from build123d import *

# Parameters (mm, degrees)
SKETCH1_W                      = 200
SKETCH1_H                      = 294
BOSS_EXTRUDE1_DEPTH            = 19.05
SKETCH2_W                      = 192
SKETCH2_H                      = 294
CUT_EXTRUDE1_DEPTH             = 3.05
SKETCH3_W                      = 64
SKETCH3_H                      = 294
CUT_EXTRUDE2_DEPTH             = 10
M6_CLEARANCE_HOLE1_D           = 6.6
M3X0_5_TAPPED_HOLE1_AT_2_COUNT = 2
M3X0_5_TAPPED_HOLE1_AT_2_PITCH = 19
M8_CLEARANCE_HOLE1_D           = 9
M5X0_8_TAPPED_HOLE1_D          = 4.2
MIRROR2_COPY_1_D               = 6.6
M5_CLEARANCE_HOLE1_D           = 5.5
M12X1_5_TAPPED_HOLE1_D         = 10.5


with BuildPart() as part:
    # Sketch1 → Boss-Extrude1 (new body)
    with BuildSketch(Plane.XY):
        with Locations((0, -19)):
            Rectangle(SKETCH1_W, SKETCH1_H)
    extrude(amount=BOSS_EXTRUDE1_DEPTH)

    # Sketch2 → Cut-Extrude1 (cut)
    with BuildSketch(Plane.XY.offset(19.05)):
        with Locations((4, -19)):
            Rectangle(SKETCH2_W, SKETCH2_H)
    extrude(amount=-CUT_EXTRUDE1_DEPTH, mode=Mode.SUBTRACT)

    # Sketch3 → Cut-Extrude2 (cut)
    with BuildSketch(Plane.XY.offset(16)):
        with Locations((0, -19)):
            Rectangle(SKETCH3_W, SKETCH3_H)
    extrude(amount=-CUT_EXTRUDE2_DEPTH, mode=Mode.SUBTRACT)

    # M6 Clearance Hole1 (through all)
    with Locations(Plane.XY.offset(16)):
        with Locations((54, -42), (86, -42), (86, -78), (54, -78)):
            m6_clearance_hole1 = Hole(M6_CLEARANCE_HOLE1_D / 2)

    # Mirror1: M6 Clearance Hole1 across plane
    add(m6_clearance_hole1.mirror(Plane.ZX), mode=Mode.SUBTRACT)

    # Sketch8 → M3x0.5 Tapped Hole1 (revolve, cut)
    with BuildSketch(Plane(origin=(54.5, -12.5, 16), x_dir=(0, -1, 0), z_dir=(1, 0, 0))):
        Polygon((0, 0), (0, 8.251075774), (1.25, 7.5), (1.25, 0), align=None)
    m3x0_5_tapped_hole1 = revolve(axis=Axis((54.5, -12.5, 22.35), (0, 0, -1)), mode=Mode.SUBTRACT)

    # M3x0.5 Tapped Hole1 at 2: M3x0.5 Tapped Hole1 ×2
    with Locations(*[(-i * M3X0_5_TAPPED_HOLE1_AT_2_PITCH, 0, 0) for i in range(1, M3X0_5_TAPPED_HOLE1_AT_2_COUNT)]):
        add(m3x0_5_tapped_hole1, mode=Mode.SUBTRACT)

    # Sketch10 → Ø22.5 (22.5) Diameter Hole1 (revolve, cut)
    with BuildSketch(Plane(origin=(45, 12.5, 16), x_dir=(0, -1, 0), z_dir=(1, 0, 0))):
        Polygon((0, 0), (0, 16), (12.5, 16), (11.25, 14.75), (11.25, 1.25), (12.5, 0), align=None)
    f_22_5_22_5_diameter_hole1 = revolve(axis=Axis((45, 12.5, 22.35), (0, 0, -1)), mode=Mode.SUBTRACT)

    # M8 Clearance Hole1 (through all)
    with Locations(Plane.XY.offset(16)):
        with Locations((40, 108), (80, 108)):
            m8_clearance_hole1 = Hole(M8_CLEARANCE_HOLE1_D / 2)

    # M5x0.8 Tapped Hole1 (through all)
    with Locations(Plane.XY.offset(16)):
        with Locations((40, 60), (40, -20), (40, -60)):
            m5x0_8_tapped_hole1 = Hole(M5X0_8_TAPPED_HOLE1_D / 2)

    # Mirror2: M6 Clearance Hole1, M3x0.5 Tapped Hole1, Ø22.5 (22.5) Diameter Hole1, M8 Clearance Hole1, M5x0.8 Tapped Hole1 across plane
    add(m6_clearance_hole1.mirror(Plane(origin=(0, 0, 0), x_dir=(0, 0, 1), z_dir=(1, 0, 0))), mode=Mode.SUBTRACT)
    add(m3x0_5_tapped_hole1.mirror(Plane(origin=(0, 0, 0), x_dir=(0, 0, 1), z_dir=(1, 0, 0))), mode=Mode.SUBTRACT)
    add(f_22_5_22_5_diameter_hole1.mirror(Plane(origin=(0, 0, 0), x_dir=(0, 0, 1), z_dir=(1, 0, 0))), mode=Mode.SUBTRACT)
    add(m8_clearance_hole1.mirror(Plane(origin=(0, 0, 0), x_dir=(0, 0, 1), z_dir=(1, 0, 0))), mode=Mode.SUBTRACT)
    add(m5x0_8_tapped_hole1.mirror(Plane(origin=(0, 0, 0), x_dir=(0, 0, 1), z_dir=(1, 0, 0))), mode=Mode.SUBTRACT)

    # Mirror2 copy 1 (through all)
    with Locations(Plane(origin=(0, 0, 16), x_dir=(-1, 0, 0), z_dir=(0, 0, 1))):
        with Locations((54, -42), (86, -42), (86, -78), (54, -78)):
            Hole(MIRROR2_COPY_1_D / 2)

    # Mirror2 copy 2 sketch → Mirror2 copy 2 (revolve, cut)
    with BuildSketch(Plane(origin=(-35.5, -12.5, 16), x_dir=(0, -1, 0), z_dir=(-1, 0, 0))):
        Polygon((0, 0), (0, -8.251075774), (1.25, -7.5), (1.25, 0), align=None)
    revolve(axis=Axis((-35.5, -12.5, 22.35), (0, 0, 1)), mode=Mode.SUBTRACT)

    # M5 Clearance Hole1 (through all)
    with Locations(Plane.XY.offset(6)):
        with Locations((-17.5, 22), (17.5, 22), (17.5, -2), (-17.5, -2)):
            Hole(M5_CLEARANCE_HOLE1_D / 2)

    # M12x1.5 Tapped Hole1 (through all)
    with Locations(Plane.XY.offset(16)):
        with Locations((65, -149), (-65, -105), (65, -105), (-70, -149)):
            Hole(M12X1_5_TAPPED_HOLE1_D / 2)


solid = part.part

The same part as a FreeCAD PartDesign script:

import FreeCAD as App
import Part
import Sketcher
from FreeCAD import Vector
Q = App.Units.Quantity

doc = App.newDocument("Part")
body = doc.addObject("PartDesign::Body", "Body")

# Sketch on XY plane
sketch1 = body.newObject("Sketcher::SketchObject", "Sketch")
sketch1.AttachmentSupport = (doc.getObject("XY_Plane"), [""])
sketch1.MapMode = "FlatFace"
sketch1.addGeometry(Part.LineSegment(Vector(-100, 128, 0), Vector(-100, -166, 0)), False)
sketch1.addGeometry(Part.LineSegment(Vector(-100, -166, 0), Vector(100, -166, 0)), False)
sketch1.addGeometry(Part.LineSegment(Vector(100, -166, 0), Vector(100, 128, 0)), False)
sketch1.addGeometry(Part.LineSegment(Vector(100, 128, 0), Vector(-100, 128, 0)), False)
sketch1.addConstraint(Sketcher.Constraint("Coincident", 0, 2, 1, 1))
sketch1.addConstraint(Sketcher.Constraint("Coincident", 1, 2, 2, 1))
sketch1.addConstraint(Sketcher.Constraint("Coincident", 2, 2, 3, 1))
sketch1.addConstraint(Sketcher.Constraint("Coincident", 3, 2, 0, 1))
sketch1.addConstraint(Sketcher.Constraint("Vertical", 0))
sketch1.addConstraint(Sketcher.Constraint("Horizontal", 1))
sketch1.addConstraint(Sketcher.Constraint("Vertical", 2))
sketch1.addConstraint(Sketcher.Constraint("Horizontal", 3))
sketch1.addConstraint(Sketcher.Constraint("DistanceX", 1, 1, 1, 2, Q("200 mm")))
sketch1.addConstraint(Sketcher.Constraint("DistanceY", 0, 2, 0, 1, Q("294 mm")))
sketch1.addConstraint(Sketcher.Constraint("DistanceX", 0, 2, -1, 1, Q("100 mm")))
sketch1.addConstraint(Sketcher.Constraint("DistanceY", 0, 2, -1, 1, Q("166 mm")))
pad1 = body.newObject("PartDesign::Pad", "Pad")
pad1.Profile = sketch1
pad1.Length = 19.05

# Sketch on XY plane
sketch2 = body.newObject("Sketcher::SketchObject", "Sketch001")
sketch2.AttachmentSupport = (doc.getObject("XY_Plane"), [""])
sketch2.MapMode = "FlatFace"
sketch2.AttachmentOffset = App.Placement(Vector(0, 0, 19.05), App.Rotation())
sketch2.addGeometry(Part.LineSegment(Vector(-92, 128, 0), Vector(-92, -166, 0)), False)
sketch2.addGeometry(Part.LineSegment(Vector(-92, -166, 0), Vector(100, -166, 0)), False)
sketch2.addGeometry(Part.LineSegment(Vector(100, -166, 0), Vector(100, 128, 0)), False)
sketch2.addGeometry(Part.LineSegment(Vector(100, 128, 0), Vector(-92, 128, 0)), False)
sketch2.addConstraint(Sketcher.Constraint("Coincident", 0, 2, 1, 1))
sketch2.addConstraint(Sketcher.Constraint("Coincident", 1, 2, 2, 1))
sketch2.addConstraint(Sketcher.Constraint("Coincident", 2, 2, 3, 1))
sketch2.addConstraint(Sketcher.Constraint("Coincident", 3, 2, 0, 1))
sketch2.addConstraint(Sketcher.Constraint("Vertical", 0))
sketch2.addConstraint(Sketcher.Constraint("Horizontal", 1))
sketch2.addConstraint(Sketcher.Constraint("Vertical", 2))
sketch2.addConstraint(Sketcher.Constraint("Horizontal", 3))
sketch2.addConstraint(Sketcher.Constraint("DistanceX", 1, 1, 1, 2, Q("192 mm")))
sketch2.addConstraint(Sketcher.Constraint("DistanceY", 0, 2, 0, 1, Q("294 mm")))
sketch2.addConstraint(Sketcher.Constraint("DistanceX", 0, 2, -1, 1, Q("92 mm")))
sketch2.addConstraint(Sketcher.Constraint("DistanceY", 0, 2, -1, 1, Q("166 mm")))
pocket1 = body.newObject("PartDesign::Pocket", "Pocket")
pocket1.Profile = sketch2
pocket1.Length = 3.05

# Sketch on XY plane
sketch3 = body.newObject("Sketcher::SketchObject", "Sketch002")
sketch3.AttachmentSupport = (doc.getObject("XY_Plane"), [""])
sketch3.MapMode = "FlatFace"
sketch3.AttachmentOffset = App.Placement(Vector(0, 0, 16), App.Rotation())
sketch3.addGeometry(Part.LineSegment(Vector(-32, 128, 0), Vector(-32, -166, 0)), False)
sketch3.addGeometry(Part.LineSegment(Vector(-32, -166, 0), Vector(32, -166, 0)), False)
sketch3.addGeometry(Part.LineSegment(Vector(32, -166, 0), Vector(32, 128, 0)), False)
sketch3.addGeometry(Part.LineSegment(Vector(32, 128, 0), Vector(-32, 128, 0)), False)
sketch3.addConstraint(Sketcher.Constraint("Coincident", 0, 2, 1, 1))
sketch3.addConstraint(Sketcher.Constraint("Coincident", 1, 2, 2, 1))
sketch3.addConstraint(Sketcher.Constraint("Coincident", 2, 2, 3, 1))
sketch3.addConstraint(Sketcher.Constraint("Coincident", 3, 2, 0, 1))
sketch3.addConstraint(Sketcher.Constraint("Vertical", 0))
sketch3.addConstraint(Sketcher.Constraint("Horizontal", 1))
sketch3.addConstraint(Sketcher.Constraint("Vertical", 2))
sketch3.addConstraint(Sketcher.Constraint("Horizontal", 3))
sketch3.addConstraint(Sketcher.Constraint("DistanceX", 1, 1, 1, 2, Q("64 mm")))
sketch3.addConstraint(Sketcher.Constraint("DistanceY", 0, 2, 0, 1, Q("294 mm")))
sketch3.addConstraint(Sketcher.Constraint("DistanceX", 0, 2, -1, 1, Q("32 mm")))
sketch3.addConstraint(Sketcher.Constraint("DistanceY", 0, 2, -1, 1, Q("166 mm")))
pocket2 = body.newObject("PartDesign::Pocket", "Pocket001")
pocket2.Profile = sketch3
pocket2.Length = 10

# Sketch on XY plane
sketch4 = body.newObject("Sketcher::SketchObject", "Sketch003")
sketch4.AttachmentSupport = (doc.getObject("XY_Plane"), [""])
sketch4.MapMode = "FlatFace"
sketch4.AttachmentOffset = App.Placement(Vector(0, 0, 16), App.Rotation())
sketch4.addGeometry(Part.Circle(Vector(54, -42, 0), Vector(0, 0, 1), 3.3), False)
sketch4.addGeometry(Part.Circle(Vector(86, -42, 0), Vector(0, 0, 1), 3.3), False)
sketch4.addGeometry(Part.Circle(Vector(86, -78, 0), Vector(0, 0, 1), 3.3), False)
sketch4.addGeometry(Part.Circle(Vector(54, -78, 0), Vector(0, 0, 1), 3.3), False)
sketch4.addConstraint(Sketcher.Constraint("Equal", 0, 1))
sketch4.addConstraint(Sketcher.Constraint("Equal", 1, 2))
sketch4.addConstraint(Sketcher.Constraint("Equal", 2, 3))
sketch4.addConstraint(Sketcher.Constraint("Horizontal", 0, 3, 1, 3))
sketch4.addConstraint(Sketcher.Constraint("Horizontal", 2, 3, 3, 3))
sketch4.addConstraint(Sketcher.Constraint("Vertical", 1, 3, 2, 3))
sketch4.addConstraint(Sketcher.Constraint("Vertical", 0, 3, 3, 3))
sketch4.addConstraint(Sketcher.Constraint("Diameter", 0, Q("6.6 mm")))
sketch4.addConstraint(Sketcher.Constraint("DistanceX", -1, 1, 0, 3, Q("54 mm")))
sketch4.addConstraint(Sketcher.Constraint("DistanceY", 0, 3, -1, 1, Q("42 mm")))
sketch4.addConstraint(Sketcher.Constraint("DistanceX", -1, 1, 1, 3, Q("86 mm")))
sketch4.addConstraint(Sketcher.Constraint("DistanceY", 2, 3, -1, 1, Q("78 mm")))
doc.recompute()
hole = body.newObject("PartDesign::Hole", "Hole")
hole.Profile = sketch4
hole.ThreadType = "None"
hole.Diameter = 6.6
hole.DepthType = "ThroughAll"
doc.recompute()

mirrored = body.newObject("PartDesign::Mirrored", "Mirrored")
mirrored.Originals = [hole]
mirrored.MirrorPlane = (doc.getObject("XZ_Plane"), [""])
body.Tip = mirrored

# Sketch on YZ plane
sketch5 = body.newObject("Sketcher::SketchObject", "Sketch004")
sketch5.AttachmentSupport = (doc.getObject("YZ_Plane"), [""])
sketch5.MapMode = "FlatFace"
sketch5.AttachmentOffset = App.Placement(Vector(0, 0, 54.5), App.Rotation())
sketch5.addGeometry(Part.LineSegment(Vector(-12.5, 7.7, 0), Vector(-12.5, 16, 0)), False)
sketch5.addGeometry(Part.LineSegment(Vector(-12.5, 16, 0), Vector(-13.8, 16, 0)), False)
sketch5.addGeometry(Part.LineSegment(Vector(-13.8, 16, 0), Vector(-13.8, 8.5, 0)), False)
sketch5.addGeometry(Part.LineSegment(Vector(-13.8, 8.5, 0), Vector(-12.5, 7.7, 0)), False)
sketch5.addGeometry(Part.LineSegment(Vector(-12.5, 16, 0), Vector(-12.5, 7.7, 0)), True)  # axis
sketch5.addConstraint(Sketcher.Constraint("Coincident", 0, 2, 1, 1))
sketch5.addConstraint(Sketcher.Constraint("Coincident", 1, 2, 2, 1))
sketch5.addConstraint(Sketcher.Constraint("Coincident", 2, 2, 3, 1))
sketch5.addConstraint(Sketcher.Constraint("Coincident", 3, 2, 0, 1))
sketch5.addConstraint(Sketcher.Constraint("Vertical", 0))
sketch5.addConstraint(Sketcher.Constraint("Horizontal", 1))
sketch5.addConstraint(Sketcher.Constraint("Vertical", 2))
sketch5.addConstraint(Sketcher.Constraint("Vertical", 4))
sketch5.addConstraint(Sketcher.Constraint("Coincident", 4, 1, 0, 2))
sketch5.addConstraint(Sketcher.Constraint("Equal", 0, 4))
sketch5.addConstraint(Sketcher.Constraint("Angle", 3, Q("-31 deg")))
sketch5.addConstraint(Sketcher.Constraint("DistanceY", 2, 2, 2, 1, Q("7.5 mm")))
sketch5.addConstraint(Sketcher.Constraint("DistanceY", -1, 1, 0, 2, Q("16 mm")))
sketch5.addConstraint(Sketcher.Constraint("DistanceX", 1, 2, 1, 1, Q("1.25 mm")))
sketch5.addConstraint(Sketcher.Constraint("DistanceX", 0, 2, -1, 1, Q("12.5 mm")))
groove = body.newObject("PartDesign::Groove", "Groove")
groove.Profile = sketch5
groove.ReferenceAxis = (sketch5, ["Axis0"])
groove.Angle = 360
doc.recompute()

linearpattern = body.newObject("PartDesign::LinearPattern", "LinearPattern")
linearpattern.Originals = [groove]
linearpattern.Direction = (doc.getObject("X_Axis"), [""])
linearpattern.Mode = "offset"
linearpattern.Offset = 19
linearpattern.Occurrences = 2
linearpattern.Reversed = True
body.Tip = linearpattern

# Sketch on YZ plane
sketch6 = body.newObject("Sketcher::SketchObject", "Sketch005")
sketch6.AttachmentSupport = (doc.getObject("YZ_Plane"), [""])
sketch6.MapMode = "FlatFace"
sketch6.AttachmentOffset = App.Placement(Vector(0, 0, 45), App.Rotation())
sketch6.addGeometry(Part.LineSegment(Vector(12.5, 0, 0), Vector(12.5, 16, 0)), False)
sketch6.addGeometry(Part.LineSegment(Vector(12.5, 16, 0), Vector(0, 16, 0)), False)
sketch6.addGeometry(Part.LineSegment(Vector(0, 16, 0), Vector(1.2, 14.8, 0)), False)
sketch6.addGeometry(Part.LineSegment(Vector(1.2, 14.8, 0), Vector(1.2, 1.2, 0)), False)
sketch6.addGeometry(Part.LineSegment(Vector(1.2, 1.2, 0), Vector(0, 0, 0)), False)
sketch6.addGeometry(Part.LineSegment(Vector(0, 0, 0), Vector(12.5, 0, 0)), False)
sketch6.addGeometry(Part.LineSegment(Vector(12.5, 16, 0), Vector(12.5, 0, 0)), True)  # axis
sketch6.addConstraint(Sketcher.Constraint("Coincident", 0, 2, 1, 1))
sketch6.addConstraint(Sketcher.Constraint("Coincident", 1, 2, 2, 1))
sketch6.addConstraint(Sketcher.Constraint("Coincident", 2, 2, 3, 1))
sketch6.addConstraint(Sketcher.Constraint("Coincident", 3, 2, 4, 1))
sketch6.addConstraint(Sketcher.Constraint("Coincident", 4, 2, 5, 1))
sketch6.addConstraint(Sketcher.Constraint("Coincident", 5, 2, 0, 1))
sketch6.addConstraint(Sketcher.Constraint("Vertical", 0))
sketch6.addConstraint(Sketcher.Constraint("Horizontal", 1))
sketch6.addConstraint(Sketcher.Constraint("Vertical", 3))
sketch6.addConstraint(Sketcher.Constraint("Horizontal", 5))
sketch6.addConstraint(Sketcher.Constraint("Vertical", 6))
sketch6.addConstraint(Sketcher.Constraint("Coincident", 4, 2, -1, 1))
sketch6.addConstraint(Sketcher.Constraint("Coincident", 6, 1, 0, 2))
sketch6.addConstraint(Sketcher.Constraint("PointOnObject", 1, 2, -2))
sketch6.addConstraint(Sketcher.Constraint("PointOnObject", 6, 2, -1))
sketch6.addConstraint(Sketcher.Constraint("Perpendicular", 2, 4))
sketch6.addConstraint(Sketcher.Constraint("Equal", 2, 4))
sketch6.addConstraint(Sketcher.Constraint("DistanceY", 0, 1, 0, 2, Q("16 mm")))
sketch6.addConstraint(Sketcher.Constraint("DistanceX", 1, 2, 1, 1, Q("12.5 mm")))
sketch6.addConstraint(Sketcher.Constraint("DistanceY", 3, 2, 3, 1, Q("13.5 mm")))
groove2 = body.newObject("PartDesign::Groove", "Groove001")
groove2.Profile = sketch6
groove2.ReferenceAxis = (sketch6, ["Axis0"])
groove2.Angle = 360

# Sketch on XY plane
sketch7 = body.newObject("Sketcher::SketchObject", "Sketch006")
sketch7.AttachmentSupport = (doc.getObject("XY_Plane"), [""])
sketch7.MapMode = "FlatFace"
sketch7.AttachmentOffset = App.Placement(Vector(0, 0, 16), App.Rotation())
sketch7.addGeometry(Part.Circle(Vector(40, 108, 0), Vector(0, 0, 1), 4.5), False)
sketch7.addGeometry(Part.Circle(Vector(80, 108, 0), Vector(0, 0, 1), 4.5), False)
sketch7.addConstraint(Sketcher.Constraint("Equal", 0, 1))
sketch7.addConstraint(Sketcher.Constraint("Horizontal", 0, 3, 1, 3))
sketch7.addConstraint(Sketcher.Constraint("Diameter", 0, Q("9 mm")))
sketch7.addConstraint(Sketcher.Constraint("DistanceX", -1, 1, 0, 3, Q("40 mm")))
sketch7.addConstraint(Sketcher.Constraint("DistanceY", -1, 1, 0, 3, Q("108 mm")))
sketch7.addConstraint(Sketcher.Constraint("DistanceX", -1, 1, 1, 3, Q("80 mm")))
doc.recompute()
hole2 = body.newObject("PartDesign::Hole", "Hole001")
hole2.Profile = sketch7
hole2.ThreadType = "None"
hole2.Diameter = 9
hole2.DepthType = "ThroughAll"

# Sketch on XY plane
sketch8 = body.newObject("Sketcher::SketchObject", "Sketch007")
sketch8.AttachmentSupport = (doc.getObject("XY_Plane"), [""])
sketch8.MapMode = "FlatFace"
sketch8.AttachmentOffset = App.Placement(Vector(0, 0, 16), App.Rotation())
sketch8.addGeometry(Part.Circle(Vector(40, 60, 0), Vector(0, 0, 1), 2.1), False)
sketch8.addGeometry(Part.Circle(Vector(40, -20, 0), Vector(0, 0, 1), 2.1), False)
sketch8.addGeometry(Part.Circle(Vector(40, -60, 0), Vector(0, 0, 1), 2.1), False)
sketch8.addConstraint(Sketcher.Constraint("Equal", 0, 1))
sketch8.addConstraint(Sketcher.Constraint("Equal", 1, 2))
sketch8.addConstraint(Sketcher.Constraint("Symmetric", 0, 3, 2, 3, -1))
sketch8.addConstraint(Sketcher.Constraint("Vertical", 0, 3, 1, 3))
sketch8.addConstraint(Sketcher.Constraint("Diameter", 0, Q("4.2 mm")))
sketch8.addConstraint(Sketcher.Constraint("DistanceX", -1, 1, 0, 3, Q("40 mm")))
sketch8.addConstraint(Sketcher.Constraint("DistanceY", -1, 1, 0, 3, Q("60 mm")))
sketch8.addConstraint(Sketcher.Constraint("DistanceY", 1, 3, -1, 1, Q("20 mm")))
doc.recompute()
hole3 = body.newObject("PartDesign::Hole", "Hole002")
hole3.Profile = sketch8
hole3.ThreadType = "None"
hole3.Diameter = 4.2
hole3.DepthType = "ThroughAll"
doc.recompute()

mirrored2 = body.newObject("PartDesign::Mirrored", "Mirrored001")
mirrored2.Originals = [hole, groove, groove2, hole2, hole3]
mirrored2.MirrorPlane = (doc.getObject("YZ_Plane"), [""])
body.Tip = mirrored2

# Sketch on XY plane
sketch9 = body.newObject("Sketcher::SketchObject", "Sketch008")
sketch9.AttachmentSupport = (doc.getObject("XY_Plane"), [""])
sketch9.MapMode = "FlatFace"
sketch9.AttachmentOffset = App.Placement(Vector(0, 0, 16), App.Rotation())
sketch9.addGeometry(Part.Circle(Vector(-54, 42, 0), Vector(0, 0, 1), 3.3), False)
sketch9.addGeometry(Part.Circle(Vector(-86, 42, 0), Vector(0, 0, 1), 3.3), False)
sketch9.addGeometry(Part.Circle(Vector(-86, 78, 0), Vector(0, 0, 1), 3.3), False)
sketch9.addGeometry(Part.Circle(Vector(-54, 78, 0), Vector(0, 0, 1), 3.3), False)
sketch9.addConstraint(Sketcher.Constraint("Equal", 0, 1))
sketch9.addConstraint(Sketcher.Constraint("Equal", 1, 2))
sketch9.addConstraint(Sketcher.Constraint("Equal", 2, 3))
sketch9.addConstraint(Sketcher.Constraint("Horizontal", 0, 3, 1, 3))
sketch9.addConstraint(Sketcher.Constraint("Horizontal", 2, 3, 3, 3))
sketch9.addConstraint(Sketcher.Constraint("Vertical", 1, 3, 2, 3))
sketch9.addConstraint(Sketcher.Constraint("Vertical", 0, 3, 3, 3))
sketch9.addConstraint(Sketcher.Constraint("Diameter", 0, Q("6.6 mm")))
sketch9.addConstraint(Sketcher.Constraint("DistanceX", 0, 3, -1, 1, Q("54 mm")))
sketch9.addConstraint(Sketcher.Constraint("DistanceY", -1, 1, 0, 3, Q("42 mm")))
sketch9.addConstraint(Sketcher.Constraint("DistanceX", 1, 3, -1, 1, Q("86 mm")))
sketch9.addConstraint(Sketcher.Constraint("DistanceY", -1, 1, 2, 3, Q("78 mm")))
doc.recompute()
hole4 = body.newObject("PartDesign::Hole", "Hole003")
hole4.Profile = sketch9
hole4.ThreadType = "None"
hole4.Diameter = 6.6
hole4.DepthType = "ThroughAll"

# Sketch on YZ plane
sketch10 = body.newObject("Sketcher::SketchObject", "Sketch009")
sketch10.AttachmentSupport = (doc.getObject("YZ_Plane"), [""])
sketch10.MapMode = "FlatFace"
sketch10.AttachmentOffset = App.Placement(Vector(0, 0, -35.5), App.Rotation())
sketch10.addGeometry(Part.LineSegment(Vector(-12.5, 16, 0), Vector(-12.5, 7.7, 0)), False)
sketch10.addGeometry(Part.LineSegment(Vector(-12.5, 7.7, 0), Vector(-13.8, 8.5, 0)), False)
sketch10.addGeometry(Part.LineSegment(Vector(-13.8, 8.5, 0), Vector(-13.8, 16, 0)), False)
sketch10.addGeometry(Part.LineSegment(Vector(-13.8, 16, 0), Vector(-12.5, 16, 0)), False)
sketch10.addGeometry(Part.LineSegment(Vector(-12.5, 7.7, 0), Vector(-12.5, 16, 0)), True)  # axis
sketch10.addConstraint(Sketcher.Constraint("Coincident", 0, 2, 1, 1))
sketch10.addConstraint(Sketcher.Constraint("Coincident", 1, 2, 2, 1))
sketch10.addConstraint(Sketcher.Constraint("Coincident", 2, 2, 3, 1))
sketch10.addConstraint(Sketcher.Constraint("Coincident", 3, 2, 0, 1))
sketch10.addConstraint(Sketcher.Constraint("Vertical", 0))
sketch10.addConstraint(Sketcher.Constraint("Vertical", 2))
sketch10.addConstraint(Sketcher.Constraint("Horizontal", 3))
sketch10.addConstraint(Sketcher.Constraint("Vertical", 4))
sketch10.addConstraint(Sketcher.Constraint("Coincident", 4, 1, 0, 2))
sketch10.addConstraint(Sketcher.Constraint("Horizontal", 2, 2, 4, 2))
sketch10.addConstraint(Sketcher.Constraint("Angle", 1, Q("149 deg")))
sketch10.addConstraint(Sketcher.Constraint("DistanceY", 2, 1, 2, 2, Q("7.5 mm")))
sketch10.addConstraint(Sketcher.Constraint("DistanceY", -1, 1, 2, 2, Q("16 mm")))
sketch10.addConstraint(Sketcher.Constraint("DistanceX", 3, 1, 3, 2, Q("1.25 mm")))
sketch10.addConstraint(Sketcher.Constraint("DistanceX", 0, 2, -1, 1, Q("12.5 mm")))
groove3 = body.newObject("PartDesign::Groove", "Groove002")
groove3.Profile = sketch10
groove3.ReferenceAxis = (sketch10, ["Axis0"])
groove3.Angle = 360

# Sketch on XY plane
sketch11 = body.newObject("Sketcher::SketchObject", "Sketch010")
sketch11.AttachmentSupport = (doc.getObject("XY_Plane"), [""])
sketch11.MapMode = "FlatFace"
sketch11.AttachmentOffset = App.Placement(Vector(0, 0, 6), App.Rotation())
sketch11.addGeometry(Part.Circle(Vector(-17.5, 22, 0), Vector(0, 0, 1), 2.8), False)
sketch11.addGeometry(Part.Circle(Vector(17.5, 22, 0), Vector(0, 0, 1), 2.8), False)
sketch11.addGeometry(Part.Circle(Vector(17.5, -2, 0), Vector(0, 0, 1), 2.8), False)
sketch11.addGeometry(Part.Circle(Vector(-17.5, -2, 0), Vector(0, 0, 1), 2.8), False)
sketch11.addConstraint(Sketcher.Constraint("Equal", 0, 1))
sketch11.addConstraint(Sketcher.Constraint("Equal", 1, 2))
sketch11.addConstraint(Sketcher.Constraint("Equal", 2, 3))
sketch11.addConstraint(Sketcher.Constraint("Symmetric", 0, 3, 1, 3, -2))
sketch11.addConstraint(Sketcher.Constraint("Symmetric", 2, 3, 3, 3, -2))
sketch11.addConstraint(Sketcher.Constraint("Vertical", 1, 3, 2, 3))
sketch11.addConstraint(Sketcher.Constraint("Diameter", 0, Q("5.5 mm")))
sketch11.addConstraint(Sketcher.Constraint("DistanceY", -1, 1, 0, 3, Q("22 mm")))
sketch11.addConstraint(Sketcher.Constraint("DistanceY", 2, 3, -1, 1, Q("2 mm")))
sketch11.addConstraint(Sketcher.Constraint("DistanceX", 0, 3, 1, 3, Q("35 mm")))
doc.recompute()
hole5 = body.newObject("PartDesign::Hole", "Hole004")
hole5.Profile = sketch11
hole5.ThreadType = "None"
hole5.Diameter = 5.5
hole5.DepthType = "ThroughAll"

# Sketch on XY plane
sketch12 = body.newObject("Sketcher::SketchObject", "Sketch011")
sketch12.AttachmentSupport = (doc.getObject("XY_Plane"), [""])
sketch12.MapMode = "FlatFace"
sketch12.AttachmentOffset = App.Placement(Vector(0, 0, 16), App.Rotation())
sketch12.addGeometry(Part.Circle(Vector(65, -149, 0), Vector(0, 0, 1), 5), False)
sketch12.addGeometry(Part.Circle(Vector(-65, -105, 0), Vector(0, 0, 1), 5), False)
sketch12.addGeometry(Part.Circle(Vector(65, -105, 0), Vector(0, 0, 1), 5), False)
sketch12.addGeometry(Part.Circle(Vector(-70, -149, 0), Vector(0, 0, 1), 5), False)
sketch12.addConstraint(Sketcher.Constraint("Equal", 0, 1))
sketch12.addConstraint(Sketcher.Constraint("Equal", 1, 2))
sketch12.addConstraint(Sketcher.Constraint("Equal", 2, 3))
sketch12.addConstraint(Sketcher.Constraint("Symmetric", 1, 3, 2, 3, -2))
sketch12.addConstraint(Sketcher.Constraint("Horizontal", 0, 3, 3, 3))
sketch12.addConstraint(Sketcher.Constraint("Vertical", 0, 3, 2, 3))
sketch12.addConstraint(Sketcher.Constraint("Diameter", 0, Q("10.5 mm")))
sketch12.addConstraint(Sketcher.Constraint("DistanceX", -1, 1, 0, 3, Q("65 mm")))
sketch12.addConstraint(Sketcher.Constraint("DistanceY", 0, 3, -1, 1, Q("149 mm")))
sketch12.addConstraint(Sketcher.Constraint("DistanceY", 1, 3, -1, 1, Q("105 mm")))
sketch12.addConstraint(Sketcher.Constraint("DistanceX", 3, 3, -1, 1, Q("70 mm")))
doc.recompute()
hole6 = body.newObject("PartDesign::Hole", "Hole005")
hole6.Profile = sketch12
hole6.ThreadType = "None"
hole6.Diameter = 10.5
hole6.DepthType = "ThroughAll"

doc.recompute()
